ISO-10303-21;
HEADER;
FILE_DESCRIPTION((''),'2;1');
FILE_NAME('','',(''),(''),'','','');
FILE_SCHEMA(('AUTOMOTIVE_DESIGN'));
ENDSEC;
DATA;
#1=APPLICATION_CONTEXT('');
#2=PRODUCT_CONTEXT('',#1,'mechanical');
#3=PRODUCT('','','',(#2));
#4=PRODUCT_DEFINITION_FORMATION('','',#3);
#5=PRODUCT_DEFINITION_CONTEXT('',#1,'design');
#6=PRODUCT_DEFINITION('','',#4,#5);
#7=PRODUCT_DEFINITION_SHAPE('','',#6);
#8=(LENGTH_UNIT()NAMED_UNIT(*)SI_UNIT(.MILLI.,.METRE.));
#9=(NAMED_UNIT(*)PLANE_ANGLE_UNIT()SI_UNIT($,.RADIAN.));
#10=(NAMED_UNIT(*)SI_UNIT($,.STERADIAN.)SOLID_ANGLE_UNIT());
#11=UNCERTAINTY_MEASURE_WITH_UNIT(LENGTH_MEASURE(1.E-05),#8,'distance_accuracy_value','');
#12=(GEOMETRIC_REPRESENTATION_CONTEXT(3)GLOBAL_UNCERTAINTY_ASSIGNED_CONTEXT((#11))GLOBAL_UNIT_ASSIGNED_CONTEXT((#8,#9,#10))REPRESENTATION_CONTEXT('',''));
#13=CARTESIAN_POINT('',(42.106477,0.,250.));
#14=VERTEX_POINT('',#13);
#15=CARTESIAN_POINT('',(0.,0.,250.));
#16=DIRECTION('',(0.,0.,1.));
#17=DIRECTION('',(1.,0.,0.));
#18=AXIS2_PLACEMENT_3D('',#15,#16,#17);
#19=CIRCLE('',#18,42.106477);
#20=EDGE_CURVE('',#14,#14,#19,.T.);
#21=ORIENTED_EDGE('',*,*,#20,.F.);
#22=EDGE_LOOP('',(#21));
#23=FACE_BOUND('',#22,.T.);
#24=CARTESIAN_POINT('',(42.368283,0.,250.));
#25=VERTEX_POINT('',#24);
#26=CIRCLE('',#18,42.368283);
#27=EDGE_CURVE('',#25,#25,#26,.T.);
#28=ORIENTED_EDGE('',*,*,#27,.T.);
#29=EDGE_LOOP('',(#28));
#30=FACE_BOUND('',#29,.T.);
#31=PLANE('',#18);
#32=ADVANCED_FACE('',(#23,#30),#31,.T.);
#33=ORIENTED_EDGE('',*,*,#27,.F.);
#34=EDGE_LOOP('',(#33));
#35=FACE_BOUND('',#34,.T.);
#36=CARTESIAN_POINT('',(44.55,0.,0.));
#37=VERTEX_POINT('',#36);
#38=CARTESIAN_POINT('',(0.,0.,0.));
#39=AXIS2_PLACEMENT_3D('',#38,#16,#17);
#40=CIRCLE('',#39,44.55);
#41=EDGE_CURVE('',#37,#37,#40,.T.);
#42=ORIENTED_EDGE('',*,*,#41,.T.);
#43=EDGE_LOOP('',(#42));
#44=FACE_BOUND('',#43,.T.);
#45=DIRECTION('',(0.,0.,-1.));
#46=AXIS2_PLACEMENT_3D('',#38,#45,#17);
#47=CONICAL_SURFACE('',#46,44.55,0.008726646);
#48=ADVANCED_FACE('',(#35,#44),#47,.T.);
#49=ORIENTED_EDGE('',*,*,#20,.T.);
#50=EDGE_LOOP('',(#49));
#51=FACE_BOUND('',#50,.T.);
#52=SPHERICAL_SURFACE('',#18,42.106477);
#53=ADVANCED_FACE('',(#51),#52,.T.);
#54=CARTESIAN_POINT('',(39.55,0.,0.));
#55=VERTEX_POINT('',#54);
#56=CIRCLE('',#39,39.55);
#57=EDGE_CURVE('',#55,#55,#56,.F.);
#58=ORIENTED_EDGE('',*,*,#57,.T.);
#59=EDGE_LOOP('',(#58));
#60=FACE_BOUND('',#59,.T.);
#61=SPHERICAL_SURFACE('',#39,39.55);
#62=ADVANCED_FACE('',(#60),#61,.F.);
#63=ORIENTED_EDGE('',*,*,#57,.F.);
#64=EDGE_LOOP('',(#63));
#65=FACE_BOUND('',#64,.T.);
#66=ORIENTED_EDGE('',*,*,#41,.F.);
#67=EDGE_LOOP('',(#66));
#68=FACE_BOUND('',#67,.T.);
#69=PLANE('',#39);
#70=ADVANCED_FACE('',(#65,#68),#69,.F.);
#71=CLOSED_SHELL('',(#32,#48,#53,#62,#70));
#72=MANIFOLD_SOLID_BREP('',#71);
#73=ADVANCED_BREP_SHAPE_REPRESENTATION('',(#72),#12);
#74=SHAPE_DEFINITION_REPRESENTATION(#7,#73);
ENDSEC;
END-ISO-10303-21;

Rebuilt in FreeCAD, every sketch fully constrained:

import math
import FreeCAD as App
import Part
import Sketcher
Q = App.Units.Quantity

doc = App.newDocument("Part")
params = doc.addObject("Spreadsheet::Sheet", "Params")
for row, (alias, value) in enumerate([
    ("sketch1_diameter", "89.1 mm"),
    ("pad1_length", "250 mm"),
    ("pad1_taper", "-0.5 deg"),
    ("sketch2_radius", "39.55 mm"),
    ("groove_angle", "360 deg"),
    ("revolution_angle", "360 deg"),
], start=1):
    params.set(f"A{row}", alias)
    params.set(f"B{row}", "=" + value)
    params.setAlias(f"B{row}", alias)

body = doc.addObject("PartDesign::Body", "Body")

# Sketch on XY plane
sketch1 = body.newObject("Sketcher::SketchObject", "Sketch")
sketch1.AttachmentSupport = (doc.getObject("XY_Plane"), [""])
sketch1.MapMode = "FlatFace"
sketch1.addGeometry(Part.Circle(App.Vector(0, 0, 0), App.Vector(0, 0, 1), 45), False)
sketch1.addConstraint(Sketcher.Constraint("Coincident", 0, 3, -1, 1))
sketch1.addConstraint(Sketcher.Constraint("Diameter", 0, Q("89.1 mm")))
sketch1.setExpression("Constraints[1]", "Params.sketch1_diameter")
pad1 = body.newObject("PartDesign::Pad", "Pad")
pad1.Profile = sketch1
pad1.setExpression("Length", "Params.pad1_length")
pad1.setExpression("TaperAngle", "Params.pad1_taper")

# Sketch on XY plane
sketch2 = body.newObject("Sketcher::SketchObject", "Sketch001")
sketch2.AttachmentSupport = (doc.getObject("XY_Plane"), [""])
sketch2.MapMode = "FlatFace"
sketch2.addGeometry(Part.LineSegment(App.Vector(0, 40, 0), App.Vector(0, -40, 0)), False)
sketch2.addGeometry(Part.ArcOfCircle(Part.Circle(App.Vector(0, 0, 0), App.Vector(0, 0, 1), 40), math.radians(90), math.radians(270)), False)
sketch2.addConstraint(Sketcher.Constraint("Coincident", 0, 1, 1, 1))
sketch2.addConstraint(Sketcher.Constraint("Coincident", 1, 2, 0, 2))
sketch2.addConstraint(Sketcher.Constraint("Vertical", 0))
sketch2.addConstraint(Sketcher.Constraint("Coincident", 1, 3, -1, 1))
sketch2.addConstraint(Sketcher.Constraint("PointOnObject", 0, 1, -2))
sketch2.addConstraint(Sketcher.Constraint("Radius", 1, Q("39.55 mm")))
sketch2.setExpression("Constraints[5]", "Params.sketch2_radius")
groove = body.newObject("PartDesign::Groove", "Groove")
groove.Profile = sketch2
groove.ReferenceAxis = (sketch2, ["V_Axis"])
groove.setExpression("Angle", "Params.groove_angle")

# Sketch on XY plane
sketch3 = body.newObject("Sketcher::SketchObject", "Sketch002")
sketch3.AttachmentSupport = (doc.getObject("XY_Plane"), [""])
sketch3.MapMode = "FlatFace"
sketch3.AttachmentOffset = App.Placement(App.Vector(0, 0, 250), App.Rotation())
sketch3.addGeometry(Part.LineSegment(App.Vector(0, -42, 0), App.Vector(0, 42, 0)), False)
sketch3.addGeometry(Part.ArcOfCircle(Part.Circle(App.Vector(0, 0, 0), App.Vector(0, 0, 1), 42), math.radians(90), math.radians(270)), False)
sketch3.addConstraint(Sketcher.Constraint("Coincident", 0, 1, 1, 2))
sketch3.addConstraint(Sketcher.Constraint("Coincident", 1, 1, 0, 2))
sketch3.addConstraint(Sketcher.Constraint("Vertical", 0))
sketch3.addConstraint(Sketcher.Constraint("Coincident", 1, 3, -1, 1))
sketch3.addConstraint(Sketcher.Constraint("PointOnObject", 0, 1, -2))
sketch3.addConstraint(Sketcher.Constraint("Radius", 1, Q("42.106477 mm")))
revolution = body.newObject("PartDesign::Revolution", "Revolution")
revolution.Profile = sketch3
revolution.ReferenceAxis = (sketch3, ["V_Axis"])
revolution.setExpression("Angle", "Params.revolution_angle")

doc.recompute()
